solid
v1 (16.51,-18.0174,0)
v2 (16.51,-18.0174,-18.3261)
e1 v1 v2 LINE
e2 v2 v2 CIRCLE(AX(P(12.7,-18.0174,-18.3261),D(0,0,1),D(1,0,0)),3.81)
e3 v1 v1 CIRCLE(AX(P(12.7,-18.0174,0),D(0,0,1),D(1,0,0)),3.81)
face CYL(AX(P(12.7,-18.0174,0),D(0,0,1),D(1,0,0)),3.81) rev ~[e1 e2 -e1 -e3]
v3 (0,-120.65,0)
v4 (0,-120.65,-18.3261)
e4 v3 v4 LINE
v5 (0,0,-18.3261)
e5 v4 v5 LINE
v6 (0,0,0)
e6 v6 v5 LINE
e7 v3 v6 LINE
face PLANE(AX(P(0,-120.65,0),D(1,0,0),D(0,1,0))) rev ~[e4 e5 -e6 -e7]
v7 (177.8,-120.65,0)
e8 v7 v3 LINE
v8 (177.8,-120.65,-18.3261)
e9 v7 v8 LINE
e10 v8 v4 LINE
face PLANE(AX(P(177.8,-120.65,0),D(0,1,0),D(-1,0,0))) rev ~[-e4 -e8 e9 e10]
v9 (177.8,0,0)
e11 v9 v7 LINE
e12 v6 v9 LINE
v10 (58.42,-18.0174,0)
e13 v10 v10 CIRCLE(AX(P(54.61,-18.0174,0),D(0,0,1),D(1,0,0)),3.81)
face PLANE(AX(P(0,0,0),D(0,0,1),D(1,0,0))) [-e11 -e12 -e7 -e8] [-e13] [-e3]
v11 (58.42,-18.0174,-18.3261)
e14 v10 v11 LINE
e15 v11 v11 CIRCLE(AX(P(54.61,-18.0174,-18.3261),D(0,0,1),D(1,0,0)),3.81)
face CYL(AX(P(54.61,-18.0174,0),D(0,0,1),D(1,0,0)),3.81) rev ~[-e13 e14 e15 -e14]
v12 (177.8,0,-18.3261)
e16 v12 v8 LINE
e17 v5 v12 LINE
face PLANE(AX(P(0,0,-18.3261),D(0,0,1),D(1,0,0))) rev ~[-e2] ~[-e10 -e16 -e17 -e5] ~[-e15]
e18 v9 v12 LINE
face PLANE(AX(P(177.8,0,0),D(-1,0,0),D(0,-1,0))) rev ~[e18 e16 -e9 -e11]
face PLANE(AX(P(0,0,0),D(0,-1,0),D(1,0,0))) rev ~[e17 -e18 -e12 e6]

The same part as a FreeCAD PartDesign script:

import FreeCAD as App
import Part
import Sketcher
from FreeCAD import Vector
Q = App.Units.Quantity


def add_polygon(sketch, points):
    """Adds a closed chain of lines whose ends are joined by coincident constraints."""
    first, n = sketch.GeometryCount, len(points)
    for a, b in zip(points, points[1:] + points[:1]):
        sketch.addGeometry(Part.LineSegment(App.Vector(*a, 0), App.Vector(*b, 0)), False)
    for i in range(n):
        sketch.addConstraint(Sketcher.Constraint("Coincident", first + i, 2, first + (i + 1) % n, 1))

doc = App.newDocument("Part")
body = doc.addObject("PartDesign::Body", "Body")

sketch1 = body.newObject("Sketcher::SketchObject", "Sketch")
sketch1.AttachmentSupport = (doc.getObject("XY_Plane"), [""])
sketch1.MapMode = "FlatFace"
add_polygon(sketch1, [(177.8, 0), (0, 0), (0, -120.7), (177.8, -120.7)])
sketch1.addGeometry(Part.Circle(Vector(12.7, -18, 0), Vector(0, 0, 1), 3.8), False)
sketch1.addGeometry(Part.Circle(Vector(54.6, -18, 0), Vector(0, 0, 1), 3.8), False)
sketch1.addConstraint([
    Sketcher.Constraint("Horizontal", 0),
    Sketcher.Constraint("Vertical", 1),
    Sketcher.Constraint("Horizontal", 2),
    Sketcher.Constraint("Vertical", 3),
    Sketcher.Constraint("Coincident", 0, 2, -1, 1),
    Sketcher.Constraint("Equal", 4, 5),
    Sketcher.Constraint("Horizontal", 4, 3, 5, 3),
    Sketcher.Constraint("Diameter", 4, Q("0.3 in")),
    Sketcher.Constraint("DistanceX", 0, 2, 0, 1, Q("7 in")),
    Sketcher.Constraint("DistanceY", 1, 2, 1, 1, Q("4.75 in")),
    Sketcher.Constraint("DistanceX", -1, 1, 4, 3, Q("0.5 in")),
    Sketcher.Constraint("DistanceX", 4, 3, 5, 3, Q("1.65 in")),
    Sketcher.Constraint("DistanceY", 4, 3, -1, 1, Q("18.0174 mm")),
])
pad1 = body.newObject("PartDesign::Pad", "Pad")
pad1.Profile = sketch1
pad1.Length = Q("0.7215 in")
pad1.Reversed = True

doc.recompute()
